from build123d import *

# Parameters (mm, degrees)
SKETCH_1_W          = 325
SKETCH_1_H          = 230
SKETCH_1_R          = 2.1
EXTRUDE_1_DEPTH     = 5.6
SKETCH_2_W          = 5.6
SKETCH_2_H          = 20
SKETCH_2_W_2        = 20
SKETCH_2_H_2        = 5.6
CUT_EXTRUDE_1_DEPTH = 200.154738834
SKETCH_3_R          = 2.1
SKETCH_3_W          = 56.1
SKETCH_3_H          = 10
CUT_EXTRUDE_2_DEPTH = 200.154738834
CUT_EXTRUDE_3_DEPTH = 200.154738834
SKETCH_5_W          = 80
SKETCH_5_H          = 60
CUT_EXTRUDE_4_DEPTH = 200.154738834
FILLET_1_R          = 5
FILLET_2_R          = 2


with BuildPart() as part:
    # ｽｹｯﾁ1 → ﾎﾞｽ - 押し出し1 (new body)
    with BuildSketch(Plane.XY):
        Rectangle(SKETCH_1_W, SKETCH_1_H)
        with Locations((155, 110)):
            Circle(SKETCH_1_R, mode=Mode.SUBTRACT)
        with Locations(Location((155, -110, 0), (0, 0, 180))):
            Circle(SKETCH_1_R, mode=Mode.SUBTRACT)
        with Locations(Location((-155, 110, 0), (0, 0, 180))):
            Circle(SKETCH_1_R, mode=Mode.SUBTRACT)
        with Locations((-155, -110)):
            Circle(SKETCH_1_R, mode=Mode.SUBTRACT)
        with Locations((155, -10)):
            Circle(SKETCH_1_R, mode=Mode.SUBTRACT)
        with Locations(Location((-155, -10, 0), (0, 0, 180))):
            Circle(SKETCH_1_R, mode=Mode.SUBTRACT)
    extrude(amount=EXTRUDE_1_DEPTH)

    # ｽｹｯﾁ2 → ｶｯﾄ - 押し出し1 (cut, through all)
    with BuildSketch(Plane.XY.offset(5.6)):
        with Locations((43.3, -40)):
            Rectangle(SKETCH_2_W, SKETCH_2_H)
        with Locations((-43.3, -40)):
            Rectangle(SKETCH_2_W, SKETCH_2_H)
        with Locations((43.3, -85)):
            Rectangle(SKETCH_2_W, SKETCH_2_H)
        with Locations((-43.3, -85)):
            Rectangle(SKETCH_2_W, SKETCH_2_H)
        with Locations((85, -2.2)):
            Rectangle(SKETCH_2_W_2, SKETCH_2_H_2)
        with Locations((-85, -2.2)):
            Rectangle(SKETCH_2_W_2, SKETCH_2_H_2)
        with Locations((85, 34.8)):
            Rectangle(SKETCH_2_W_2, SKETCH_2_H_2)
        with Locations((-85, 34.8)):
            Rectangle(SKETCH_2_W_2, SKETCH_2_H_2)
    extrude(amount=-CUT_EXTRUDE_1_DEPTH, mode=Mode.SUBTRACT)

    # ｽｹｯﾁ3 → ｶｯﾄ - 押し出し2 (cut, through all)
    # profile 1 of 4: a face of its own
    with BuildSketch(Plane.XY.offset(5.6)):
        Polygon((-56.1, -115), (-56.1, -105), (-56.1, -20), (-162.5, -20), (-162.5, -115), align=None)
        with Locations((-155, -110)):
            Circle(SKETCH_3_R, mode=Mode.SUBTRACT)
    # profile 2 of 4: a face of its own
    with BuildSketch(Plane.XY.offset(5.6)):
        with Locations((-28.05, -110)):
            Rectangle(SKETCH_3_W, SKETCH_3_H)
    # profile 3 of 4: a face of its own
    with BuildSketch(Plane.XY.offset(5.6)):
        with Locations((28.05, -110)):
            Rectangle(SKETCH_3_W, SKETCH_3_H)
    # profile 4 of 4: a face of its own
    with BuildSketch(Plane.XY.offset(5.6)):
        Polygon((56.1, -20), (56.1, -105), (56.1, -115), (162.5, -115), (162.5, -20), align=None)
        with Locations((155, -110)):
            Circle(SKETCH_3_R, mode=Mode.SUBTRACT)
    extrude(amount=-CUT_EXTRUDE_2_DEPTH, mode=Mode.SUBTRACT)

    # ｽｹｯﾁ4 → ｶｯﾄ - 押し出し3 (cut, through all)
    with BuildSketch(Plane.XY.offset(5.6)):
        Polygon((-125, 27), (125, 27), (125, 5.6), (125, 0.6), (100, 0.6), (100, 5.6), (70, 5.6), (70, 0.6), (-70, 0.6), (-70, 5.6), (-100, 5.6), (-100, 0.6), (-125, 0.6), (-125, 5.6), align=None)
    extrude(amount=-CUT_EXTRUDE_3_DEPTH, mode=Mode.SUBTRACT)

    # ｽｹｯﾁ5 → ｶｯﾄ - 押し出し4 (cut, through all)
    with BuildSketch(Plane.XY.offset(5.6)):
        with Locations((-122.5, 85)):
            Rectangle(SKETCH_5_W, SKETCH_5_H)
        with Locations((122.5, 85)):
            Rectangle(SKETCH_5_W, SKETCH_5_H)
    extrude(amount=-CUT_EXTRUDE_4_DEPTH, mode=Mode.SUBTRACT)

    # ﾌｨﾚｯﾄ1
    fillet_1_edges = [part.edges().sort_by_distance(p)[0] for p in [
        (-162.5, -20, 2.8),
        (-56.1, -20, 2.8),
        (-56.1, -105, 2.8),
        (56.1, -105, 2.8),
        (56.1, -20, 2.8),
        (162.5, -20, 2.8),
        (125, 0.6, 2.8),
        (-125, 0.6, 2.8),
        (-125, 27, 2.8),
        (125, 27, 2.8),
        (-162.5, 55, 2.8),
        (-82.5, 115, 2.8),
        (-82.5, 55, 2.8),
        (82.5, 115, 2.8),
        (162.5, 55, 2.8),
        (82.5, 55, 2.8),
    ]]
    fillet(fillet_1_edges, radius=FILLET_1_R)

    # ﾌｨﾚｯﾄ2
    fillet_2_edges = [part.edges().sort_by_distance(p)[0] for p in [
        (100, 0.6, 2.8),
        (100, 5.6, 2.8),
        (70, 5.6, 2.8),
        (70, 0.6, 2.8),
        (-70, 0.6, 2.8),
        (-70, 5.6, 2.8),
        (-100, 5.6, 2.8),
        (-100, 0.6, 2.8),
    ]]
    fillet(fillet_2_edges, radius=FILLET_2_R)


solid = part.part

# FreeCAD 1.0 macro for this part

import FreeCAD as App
import Part
import Sketcher
Q = App.Units.Quantity


def edges_at(feature, points):
    """Names of the edges that pass closest to the given points."""
    edges = feature.Shape.Edges
    near = lambda p: min(range(len(edges)), key=lambda i: edges[i].distToShape(Part.Vertex(*p))[0])
    return sorted({f"Edge{near(p) + 1}" for p in points})


def add_polygon(sketch, points):
    """Adds a closed chain of lines whose ends are joined by coincident constraints."""
    first, n = sketch.GeometryCount, len(points)
    for a, b in zip(points, points[1:] + points[:1]):
        sketch.addGeometry(Part.LineSegment(App.Vector(*a, 0), App.Vector(*b, 0)), False)
    for i in range(n):
        sketch.addConstraint(Sketcher.Constraint("Coincident", first + i, 2, first + (i + 1) % n, 1))

doc = App.newDocument("Part")
body = doc.addObject("PartDesign::Body", "Body")

sketch1 = body.newObject("Sketcher::SketchObject", "Sketch")
sketch1.AttachmentSupport = (doc.getObject("XY_Plane"), [""])
sketch1.MapMode = "FlatFace"
add_polygon(sketch1, [(-162.5, 115), (-162.5, -115), (162.5, -115), (162.5, 115)])
sketch1.addGeometry(Part.Circle(App.Vector(-155, -110, 0), App.Vector(0, 0, 1), 2.1), False)
sketch1.addGeometry(Part.Circle(App.Vector(-155, -10, 0), App.Vector(0, 0, 1), 2.1), False)
sketch1.addGeometry(Part.Circle(App.Vector(155, -110, 0), App.Vector(0, 0, 1), 2.1), False)
sketch1.addGeometry(Part.Circle(App.Vector(155, -10, 0), App.Vector(0, 0, 1), 2.1), False)
sketch1.addGeometry(Part.Circle(App.Vector(-155, 110, 0), App.Vector(0, 0, 1), 2.1), False)
sketch1.addGeometry(Part.Circle(App.Vector(155, 110, 0), App.Vector(0, 0, 1), 2.1), False)
sketch1.addConstraint([
    Sketcher.Constraint("Vertical", 0),
    Sketcher.Constraint("Horizontal", 1),
    Sketcher.Constraint("Vertical", 2),
    Sketcher.Constraint("Horizontal", 3),
    Sketcher.Constraint("Equal", 4, 5),
    Sketcher.Constraint("Equal", 5, 6),
    Sketcher.Constraint("Equal", 6, 7),
    Sketcher.Constraint("Equal", 7, 8),
    Sketcher.Constraint("Equal", 8, 9),
    Sketcher.Constraint("Symmetric", 6, 3, 8, 3, -1, 1),
    Sketcher.Constraint("Symmetric", 4, 3, 9, 3, -1, 1),
    Sketcher.Constraint("Symmetric", 0, 2, 2, 2, -1, 1),
    Sketcher.Constraint("Symmetric", 4, 3, 6, 3, -2),
    Sketcher.Constraint("Symmetric", 5, 3, 7, 3, -2),
    Sketcher.Constraint("Vertical", 4, 3, 5, 3),
    Sketcher.Constraint("Diameter", 4, Q("4.2 mm")),
    Sketcher.Constraint("DistanceX", 1, 1, 1, 2, Q("325 mm")),
    Sketcher.Constraint("DistanceY", 0, 2, 0, 1, Q("230 mm")),
    Sketcher.Constraint("DistanceX", 4, 3, -1, 1, Q("155 mm")),
    Sketcher.Constraint("DistanceY", 4, 3, -1, 1, Q("110 mm")),
    Sketcher.Constraint("DistanceY", 5, 3, -1, 1, Q("10 mm")),
])
pad1 = body.newObject("PartDesign::Pad", "Pad")
pad1.Profile = sketch1
pad1.Length = 5.6

sketch2 = body.newObject("Sketcher::SketchObject", "Sketch001")
sketch2.AttachmentSupport = (doc.getObject("XY_Plane"), [""])
sketch2.MapMode = "FlatFace"
sketch2.AttachmentOffset = App.Placement(App.Vector(0, 0, 5.6), App.Rotation())
add_polygon(sketch2, [(40, -30), (40, -50), (46, -50), (46, -30)])
add_polygon(sketch2, [(-46, -30), (-46, -50), (-40, -50), (-40, -30)])
add_polygon(sketch2, [(40, -75), (40, -95), (46, -95), (46, -75)])
add_polygon(sketch2, [(-46, -75), (-46, -95), (-40, -95), (-40, -75)])
add_polygon(sketch2, [(75, 1), (75, -5), (95, -5), (95, 1)])
add_polygon(sketch2, [(-95, 1), (-95, -5), (-75, -5), (-75, 1)])
add_polygon(sketch2, [(75, 38), (75, 32), (95, 32), (95, 38)])
add_polygon(sketch2, [(-95, 38), (-95, 32), (-75, 32), (-75, 38)])
sketch2.addConstraint([
    Sketcher.Constraint("Vertical", 0),
    Sketcher.Constraint("Horizontal", 1),
    Sketcher.Constraint("Vertical", 2),
    Sketcher.Constraint("Horizontal", 3),
    Sketcher.Constraint("Vertical", 4),
    Sketcher.Constraint("Horizontal", 5),
    Sketcher.Constraint("Vertical", 6),
    Sketcher.Constraint("Horizontal", 7),
    Sketcher.Constraint("Vertical", 8),
    Sketcher.Constraint("Horizontal", 9),
    Sketcher.Constraint("Vertical", 10),
    Sketcher.Constraint("Horizontal", 11),
    Sketcher.Constraint("Vertical", 12),
    Sketcher.Constraint("Horizontal", 13),
    Sketcher.Constraint("Vertical", 14),
    Sketcher.Constraint("Horizontal", 15),
    Sketcher.Constraint("Vertical", 16),
    Sketcher.Constraint("Horizontal", 17),
    Sketcher.Constraint("Vertical", 18),
    Sketcher.Constraint("Horizontal", 19),
    Sketcher.Constraint("Vertical", 20),
    Sketcher.Constraint("Horizontal", 21),
    Sketcher.Constraint("Vertical", 22),
    Sketcher.Constraint("Horizontal", 23),
    Sketcher.Constraint("Vertical", 24),
    Sketcher.Constraint("Horizontal", 25),
    Sketcher.Constraint("Vertical", 26),
    Sketcher.Constraint("Horizontal", 27),
    Sketcher.Constraint("Vertical", 28),
    Sketcher.Constraint("Horizontal", 29),
    Sketcher.Constraint("Vertical", 30),
    Sketcher.Constraint("Horizontal", 31),
    Sketcher.Constraint("Symmetric", 1, 2, 4, 2, -2),
    Sketcher.Constraint("Symmetric", 3, 2, 6, 2, -2),
    Sketcher.Constraint("Symmetric", 9, 2, 12, 2, -2),
    Sketcher.Constraint("Symmetric", 11, 2, 14, 2, -2),
    Sketcher.Constraint("Symmetric", 17, 2, 20, 2, -2),
    Sketcher.Constraint("Symmetric", 19, 2, 22, 2, -2),
    Sketcher.Constraint("Symmetric", 25, 2, 28, 2, -2),
    Sketcher.Constraint("Symmetric", 27, 2, 30, 2, -2),
    Sketcher.Constraint("Vertical", 3, 2, 8, 2),
    Sketcher.Constraint("Vertical", 2, 2, 9, 2),
    Sketcher.Constraint("Vertical", 19, 2, 24, 2),
    Sketcher.Constraint("Vertical", 18, 2, 25, 2),
    Sketcher.Constraint("Equal", 31, 0),
    Sketcher.Constraint("Equal", 6, 8),
    Sketcher.Constraint("Equal", 15, 16),
    Sketcher.Constraint("Equal", 22, 24),
    Sketcher.Constraint("DistanceX", 17, 1, 17, 2, Q("20 mm")),
    Sketcher.Constraint("DistanceX", 1, 1, 1, 2, Q("5.6 mm")),
    Sketcher.Constraint("DistanceY", 0, 2, -1, 1, Q("50 mm")),
    Sketcher.Constraint("DistanceY", 8, 2, -1, 1, Q("95 mm")),
    Sketcher.Constraint("DistanceX", -1, 1, 16, 2, Q("75 mm")),
    Sketcher.Constraint("DistanceY", 16, 2, -1, 1, Q("5 mm")),
    Sketcher.Constraint("DistanceY", -1, 1, 24, 2, Q("32 mm")),
    Sketcher.Constraint("DistanceX", 5, 2, 0, 2, Q("81 mm")),
])
pocket1 = body.newObject("PartDesign::Pocket", "Pocket")
pocket1.Profile = sketch2
pocket1.Type = "ThroughAll"

sketch3 = body.newObject("Sketcher::SketchObject", "Sketch002")
sketch3.AttachmentSupport = (doc.getObject("XY_Plane"), [""])
sketch3.MapMode = "FlatFace"
sketch3.AttachmentOffset = App.Placement(App.Vector(0, 0, 5.6), App.Rotation())
add_polygon(sketch3, [(-56.1, -105), (-56.1, -20), (-162.5, -20), (-162.5, -115), (162.5, -115), (162.5, -20), (56.1, -20), (56.1, -105)])
sketch3.addGeometry(Part.Circle(App.Vector(-155, -110, 0), App.Vector(0, 0, 1), 2.1), False)
sketch3.addGeometry(Part.Circle(App.Vector(155, -110, 0), App.Vector(0, 0, 1), 2.1), False)
sketch3.addConstraint([
    Sketcher.Constraint("Vertical", 0),
    Sketcher.Constraint("Horizontal", 1),
    Sketcher.Constraint("Vertical", 2),
    Sketcher.Constraint("Horizontal", 3),
    Sketcher.Constraint("Vertical", 4),
    Sketcher.Constraint("Horizontal", 5),
    Sketcher.Constraint("Vertical", 6),
    Sketcher.Constraint("Horizontal", 7),
    Sketcher.Constraint("Equal", 8, 9),
    Sketcher.Constraint("Symmetric", 8, 3, 9, 3, -2),
    Sketcher.Constraint("Symmetric", 1, 2, 4, 2, -2),
    Sketcher.Constraint("Equal", 1, 5),
    Sketcher.Constraint("Diameter", 8, Q("4.2 mm")),
    Sketcher.Constraint("DistanceX", 3, 1, 3, 2, Q("325 mm")),
    Sketcher.Constraint("DistanceY", 0, 1, 0, 2, Q("85 mm")),
    Sketcher.Constraint("DistanceY", 2, 2, 2, 1, Q("95 mm")),
    Sketcher.Constraint("DistanceX", 1, 2, 1, 1, Q("106.4 mm")),
    Sketcher.Constraint("DistanceX", 8, 3, -1, 1, Q("155 mm")),
    Sketcher.Constraint("DistanceY", 8, 3, -1, 1, Q("110 mm")),
    Sketcher.Constraint("DistanceY", 0, 2, -1, 1, Q("20 mm")),
])
pocket2 = body.newObject("PartDesign::Pocket", "Pocket001")
pocket2.Profile = sketch3
pocket2.Length = 200.154739

sketch4 = body.newObject("Sketcher::SketchObject", "Sketch003")
sketch4.AttachmentSupport = (doc.getObject("XY_Plane"), [""])
sketch4.MapMode = "FlatFace"
sketch4.AttachmentOffset = App.Placement(App.Vector(0, 0, 5.6), App.Rotation())
add_polygon(sketch4, [(125, 27), (-125, 27), (-125, 1), (-100, 1), (-100, 6), (-70, 6), (-70, 1), (70, 1), (70, 6), (100, 6), (100, 1), (125, 1)])
sketch4.addConstraint([
    Sketcher.Constraint("Horizontal", 0),
    Sketcher.Constraint("Vertical", 1),
    Sketcher.Constraint("Horizontal", 2),
    Sketcher.Constraint("Vertical", 3),
    Sketcher.Constraint("Horizontal", 4),
    Sketcher.Constraint("Vertical", 5),
    Sketcher.Constraint("Horizontal", 6),
    Sketcher.Constraint("Vertical", 7),
    Sketcher.Constraint("Horizontal", 8),
    Sketcher.Constraint("Vertical", 9),
    Sketcher.Constraint("Horizontal", 10),
    Sketcher.Constraint("Vertical", 11),
    Sketcher.Constraint("Symmetric", 4, 2, 7, 2, -2),
    Sketcher.Constraint("Symmetric", 2, 2, 9, 2, -2),
    Sketcher.Constraint("Horizontal", 2, 2, 5, 2),
    Sketcher.Constraint("Equal", 2, 10),
    Sketcher.Constraint("DistanceX", 0, 2, 0, 1, Q("250 mm")),
    Sketcher.Constraint("DistanceX", 2, 1, 2, 2, Q("25 mm")),
    Sketcher.Constraint("DistanceX", 4, 1, 4, 2, Q("30 mm")),
    Sketcher.Constraint("DistanceY", 3, 1, 3, 2, Q("5 mm")),
    Sketcher.Constraint("DistanceY", 1, 2, 1, 1, Q("26.4 mm")),
    Sketcher.Constraint("DistanceY", -1, 1, 0, 2, Q("27 mm")),
])
pocket3 = body.newObject("PartDesign::Pocket", "Pocket002")
pocket3.Profile = sketch4
pocket3.Type = "ThroughAll"

sketch5 = body.newObject("Sketcher::SketchObject", "Sketch004")
sketch5.AttachmentSupport = (doc.getObject("XY_Plane"), [""])
sketch5.MapMode = "FlatFace"
sketch5.AttachmentOffset = App.Placement(App.Vector(0, 0, 5.6), App.Rotation())
add_polygon(sketch5, [(-162, 115), (-162, 55), (-82, 55), (-82, 115)])
add_polygon(sketch5, [(82, 115), (82, 55), (162, 55), (162, 115)])
sketch5.addConstraint([
    Sketcher.Constraint("Vertical", 0),
    Sketcher.Constraint("Horizontal", 1),
    Sketcher.Constraint("Vertical", 2),
    Sketcher.Constraint("Horizontal", 3),
    Sketcher.Constraint("Vertical", 4),
    Sketcher.Constraint("Horizontal", 5),
    Sketcher.Constraint("Vertical", 6),
    Sketcher.Constraint("Horizontal", 7),
    Sketcher.Constraint("Symmetric", 1, 2, 4, 2, -2),
    Sketcher.Constraint("Symmetric", 3, 2, 6, 2, -2),
    Sketcher.Constraint("DistanceX", 1, 1, 1, 2, Q("80 mm")),
    Sketcher.Constraint("DistanceY", 0, 2, 0, 1, Q("60 mm")),
    Sketcher.Constraint("DistanceY", -1, 1, 0, 2, Q("55 mm")),
    Sketcher.Constraint("DistanceX", 1, 2, 4, 2, Q("165 mm")),
])
pocket4 = body.newObject("PartDesign::Pocket", "Pocket003")
pocket4.Profile = sketch5
pocket4.Type = "ThroughAll"
doc.recompute()

fillet = body.newObject("PartDesign::Fillet", "Fillet")
fillet.Base = (pocket4, edges_at(pocket4, [
    (-162.5, -20, 2.8),
    (-56.1, -20, 2.8),
    (-56.1, -105, 2.8),
    (56.1, -105, 2.8),
    (56.1, -20, 2.8),
    (162.5, -20, 2.8),
    (125, 0.6, 2.8),
    (-125, 0.6, 2.8),
    (-125, 27, 2.8),
    (125, 27, 2.8),
    (-162.5, 55, 2.8),
    (-82.5, 115, 2.8),
    (-82.5, 55, 2.8),
    (82.5, 115, 2.8),
    (162.5, 55, 2.8),
    (82.5, 55, 2.8),
]))
fillet.Radius = 5
doc.recompute()

fillet2 = body.newObject("PartDesign::Fillet", "Fillet001")
fillet2.Base = (fillet, edges_at(fillet, [
    (100, 0.6, 2.8),
    (100, 5.6, 2.8),
    (70, 5.6, 2.8),
    (70, 0.6, 2.8),
    (-70, 0.6, 2.8),
    (-70, 5.6, 2.8),
    (-100, 5.6, 2.8),
    (-100, 0.6, 2.8),
]))
fillet2.Radius = 2

doc.recompute()
